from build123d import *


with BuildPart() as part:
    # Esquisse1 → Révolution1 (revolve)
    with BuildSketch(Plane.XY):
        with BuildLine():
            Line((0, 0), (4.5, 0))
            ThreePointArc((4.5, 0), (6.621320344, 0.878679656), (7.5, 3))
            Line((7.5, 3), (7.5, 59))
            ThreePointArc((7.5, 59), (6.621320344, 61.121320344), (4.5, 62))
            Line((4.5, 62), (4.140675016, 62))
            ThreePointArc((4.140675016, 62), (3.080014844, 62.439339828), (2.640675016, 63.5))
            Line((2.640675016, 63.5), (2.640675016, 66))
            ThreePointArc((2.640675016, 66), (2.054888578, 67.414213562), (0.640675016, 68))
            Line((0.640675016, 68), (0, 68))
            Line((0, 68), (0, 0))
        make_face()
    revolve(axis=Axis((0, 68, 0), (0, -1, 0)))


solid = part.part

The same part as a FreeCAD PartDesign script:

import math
import FreeCAD as App
import Part
import Sketcher
from FreeCAD import Vector
Q = App.Units.Quantity

doc = App.newDocument("Part")
body = doc.addObject("PartDesign::Body", "Body")

sketch1 = doc.addObject("Sketcher::SketchObject", "Sketch")
body.addObject(sketch1)
sketch1.AttachmentSupport = (doc.XY_Plane, [""])
sketch1.MapMode = "FlatFace"
sketch1.addGeometry([
    Part.LineSegment(Vector(0, 0, 0), Vector(4.5, 0, 0)),
    Part.ArcOfCircle(Part.Circle(Vector(4.5, 3, 0), Vector(0, 0, 1), 3), math.radians(-90), math.radians(0)),
    Part.LineSegment(Vector(7.5, 3, 0), Vector(7.5, 59, 0)),
    Part.ArcOfCircle(Part.Circle(Vector(4.5, 59, 0), Vector(0, 0, 1), 3), math.radians(0), math.radians(90)),
    Part.LineSegment(Vector(4.5, 62, 0), Vector(4.14, 62, 0)),
    Part.ArcOfCircle(Part.Circle(Vector(4.14, 63.5, 0), Vector(0, 0, 1), 1.5), math.radians(180), math.radians(270)),
    Part.LineSegment(Vector(2.64, 63.5, 0), Vector(2.64, 66, 0)),
    Part.ArcOfCircle(Part.Circle(Vector(0.64, 66, 0), Vector(0, 0, 1), 2), math.radians(0), math.radians(90)),
    Part.LineSegment(Vector(0.64, 68, 0), Vector(0, 68, 0)),
    Part.LineSegment(Vector(0, 68, 0), Vector(0, 0, 0)),
], False)
sketch1.addConstraint([
    Sketcher.Constraint("Tangent", 0, 2, 1, 1),
    Sketcher.Constraint("Tangent", 1, 2, 2, 1),
    Sketcher.Constraint("Tangent", 2, 2, 3, 1),
    Sketcher.Constraint("Tangent", 3, 2, 4, 1),
    Sketcher.Constraint("Tangent", 4, 2, 5, 2),
    Sketcher.Constraint("Tangent", 5, 1, 6, 1),
    Sketcher.Constraint("Tangent", 6, 2, 7, 1),
    Sketcher.Constraint("Tangent", 7, 2, 8, 1),
    Sketcher.Constraint("Coincident", 8, 2, 9, 1),
    Sketcher.Constraint("Coincident", 9, 2, 0, 1),
    Sketcher.Constraint("Horizontal", 0),
    Sketcher.Constraint("Vertical", 2),
    Sketcher.Constraint("Horizontal", 4),
    Sketcher.Constraint("Vertical", 6),
    Sketcher.Constraint("Horizontal", 8),
    Sketcher.Constraint("Vertical", 9),
    Sketcher.Constraint("Coincident", 9, 2, -1, 1),
    Sketcher.Constraint("Equal", 1, 3),
    Sketcher.Constraint("Radius", 1, Q("3 mm")),
    Sketcher.Constraint("Radius", 7, Q("2 mm")),
    Sketcher.Constraint("Radius", 5, Q("1.5 mm")),
    Sketcher.Constraint("DistanceY", 2, 1, 2, 2, Q("56 mm")),
    Sketcher.Constraint("DistanceY", 9, 2, 9, 1, Q("68 mm")),
    Sketcher.Constraint("DistanceX", 0, 1, 0, 2, Q("4.5 mm")),
    Sketcher.Constraint("DistanceX", 4, 2, 4, 1, Q("0.359325 mm")),
])
revolution = doc.addObject("PartDesign::Revolution", "Revolution")
body.addObject(revolution)
revolution.Profile = sketch1
revolution.ReferenceAxis = (sketch1, ["V_Axis"])
revolution.Angle = 360

doc.recompute()
